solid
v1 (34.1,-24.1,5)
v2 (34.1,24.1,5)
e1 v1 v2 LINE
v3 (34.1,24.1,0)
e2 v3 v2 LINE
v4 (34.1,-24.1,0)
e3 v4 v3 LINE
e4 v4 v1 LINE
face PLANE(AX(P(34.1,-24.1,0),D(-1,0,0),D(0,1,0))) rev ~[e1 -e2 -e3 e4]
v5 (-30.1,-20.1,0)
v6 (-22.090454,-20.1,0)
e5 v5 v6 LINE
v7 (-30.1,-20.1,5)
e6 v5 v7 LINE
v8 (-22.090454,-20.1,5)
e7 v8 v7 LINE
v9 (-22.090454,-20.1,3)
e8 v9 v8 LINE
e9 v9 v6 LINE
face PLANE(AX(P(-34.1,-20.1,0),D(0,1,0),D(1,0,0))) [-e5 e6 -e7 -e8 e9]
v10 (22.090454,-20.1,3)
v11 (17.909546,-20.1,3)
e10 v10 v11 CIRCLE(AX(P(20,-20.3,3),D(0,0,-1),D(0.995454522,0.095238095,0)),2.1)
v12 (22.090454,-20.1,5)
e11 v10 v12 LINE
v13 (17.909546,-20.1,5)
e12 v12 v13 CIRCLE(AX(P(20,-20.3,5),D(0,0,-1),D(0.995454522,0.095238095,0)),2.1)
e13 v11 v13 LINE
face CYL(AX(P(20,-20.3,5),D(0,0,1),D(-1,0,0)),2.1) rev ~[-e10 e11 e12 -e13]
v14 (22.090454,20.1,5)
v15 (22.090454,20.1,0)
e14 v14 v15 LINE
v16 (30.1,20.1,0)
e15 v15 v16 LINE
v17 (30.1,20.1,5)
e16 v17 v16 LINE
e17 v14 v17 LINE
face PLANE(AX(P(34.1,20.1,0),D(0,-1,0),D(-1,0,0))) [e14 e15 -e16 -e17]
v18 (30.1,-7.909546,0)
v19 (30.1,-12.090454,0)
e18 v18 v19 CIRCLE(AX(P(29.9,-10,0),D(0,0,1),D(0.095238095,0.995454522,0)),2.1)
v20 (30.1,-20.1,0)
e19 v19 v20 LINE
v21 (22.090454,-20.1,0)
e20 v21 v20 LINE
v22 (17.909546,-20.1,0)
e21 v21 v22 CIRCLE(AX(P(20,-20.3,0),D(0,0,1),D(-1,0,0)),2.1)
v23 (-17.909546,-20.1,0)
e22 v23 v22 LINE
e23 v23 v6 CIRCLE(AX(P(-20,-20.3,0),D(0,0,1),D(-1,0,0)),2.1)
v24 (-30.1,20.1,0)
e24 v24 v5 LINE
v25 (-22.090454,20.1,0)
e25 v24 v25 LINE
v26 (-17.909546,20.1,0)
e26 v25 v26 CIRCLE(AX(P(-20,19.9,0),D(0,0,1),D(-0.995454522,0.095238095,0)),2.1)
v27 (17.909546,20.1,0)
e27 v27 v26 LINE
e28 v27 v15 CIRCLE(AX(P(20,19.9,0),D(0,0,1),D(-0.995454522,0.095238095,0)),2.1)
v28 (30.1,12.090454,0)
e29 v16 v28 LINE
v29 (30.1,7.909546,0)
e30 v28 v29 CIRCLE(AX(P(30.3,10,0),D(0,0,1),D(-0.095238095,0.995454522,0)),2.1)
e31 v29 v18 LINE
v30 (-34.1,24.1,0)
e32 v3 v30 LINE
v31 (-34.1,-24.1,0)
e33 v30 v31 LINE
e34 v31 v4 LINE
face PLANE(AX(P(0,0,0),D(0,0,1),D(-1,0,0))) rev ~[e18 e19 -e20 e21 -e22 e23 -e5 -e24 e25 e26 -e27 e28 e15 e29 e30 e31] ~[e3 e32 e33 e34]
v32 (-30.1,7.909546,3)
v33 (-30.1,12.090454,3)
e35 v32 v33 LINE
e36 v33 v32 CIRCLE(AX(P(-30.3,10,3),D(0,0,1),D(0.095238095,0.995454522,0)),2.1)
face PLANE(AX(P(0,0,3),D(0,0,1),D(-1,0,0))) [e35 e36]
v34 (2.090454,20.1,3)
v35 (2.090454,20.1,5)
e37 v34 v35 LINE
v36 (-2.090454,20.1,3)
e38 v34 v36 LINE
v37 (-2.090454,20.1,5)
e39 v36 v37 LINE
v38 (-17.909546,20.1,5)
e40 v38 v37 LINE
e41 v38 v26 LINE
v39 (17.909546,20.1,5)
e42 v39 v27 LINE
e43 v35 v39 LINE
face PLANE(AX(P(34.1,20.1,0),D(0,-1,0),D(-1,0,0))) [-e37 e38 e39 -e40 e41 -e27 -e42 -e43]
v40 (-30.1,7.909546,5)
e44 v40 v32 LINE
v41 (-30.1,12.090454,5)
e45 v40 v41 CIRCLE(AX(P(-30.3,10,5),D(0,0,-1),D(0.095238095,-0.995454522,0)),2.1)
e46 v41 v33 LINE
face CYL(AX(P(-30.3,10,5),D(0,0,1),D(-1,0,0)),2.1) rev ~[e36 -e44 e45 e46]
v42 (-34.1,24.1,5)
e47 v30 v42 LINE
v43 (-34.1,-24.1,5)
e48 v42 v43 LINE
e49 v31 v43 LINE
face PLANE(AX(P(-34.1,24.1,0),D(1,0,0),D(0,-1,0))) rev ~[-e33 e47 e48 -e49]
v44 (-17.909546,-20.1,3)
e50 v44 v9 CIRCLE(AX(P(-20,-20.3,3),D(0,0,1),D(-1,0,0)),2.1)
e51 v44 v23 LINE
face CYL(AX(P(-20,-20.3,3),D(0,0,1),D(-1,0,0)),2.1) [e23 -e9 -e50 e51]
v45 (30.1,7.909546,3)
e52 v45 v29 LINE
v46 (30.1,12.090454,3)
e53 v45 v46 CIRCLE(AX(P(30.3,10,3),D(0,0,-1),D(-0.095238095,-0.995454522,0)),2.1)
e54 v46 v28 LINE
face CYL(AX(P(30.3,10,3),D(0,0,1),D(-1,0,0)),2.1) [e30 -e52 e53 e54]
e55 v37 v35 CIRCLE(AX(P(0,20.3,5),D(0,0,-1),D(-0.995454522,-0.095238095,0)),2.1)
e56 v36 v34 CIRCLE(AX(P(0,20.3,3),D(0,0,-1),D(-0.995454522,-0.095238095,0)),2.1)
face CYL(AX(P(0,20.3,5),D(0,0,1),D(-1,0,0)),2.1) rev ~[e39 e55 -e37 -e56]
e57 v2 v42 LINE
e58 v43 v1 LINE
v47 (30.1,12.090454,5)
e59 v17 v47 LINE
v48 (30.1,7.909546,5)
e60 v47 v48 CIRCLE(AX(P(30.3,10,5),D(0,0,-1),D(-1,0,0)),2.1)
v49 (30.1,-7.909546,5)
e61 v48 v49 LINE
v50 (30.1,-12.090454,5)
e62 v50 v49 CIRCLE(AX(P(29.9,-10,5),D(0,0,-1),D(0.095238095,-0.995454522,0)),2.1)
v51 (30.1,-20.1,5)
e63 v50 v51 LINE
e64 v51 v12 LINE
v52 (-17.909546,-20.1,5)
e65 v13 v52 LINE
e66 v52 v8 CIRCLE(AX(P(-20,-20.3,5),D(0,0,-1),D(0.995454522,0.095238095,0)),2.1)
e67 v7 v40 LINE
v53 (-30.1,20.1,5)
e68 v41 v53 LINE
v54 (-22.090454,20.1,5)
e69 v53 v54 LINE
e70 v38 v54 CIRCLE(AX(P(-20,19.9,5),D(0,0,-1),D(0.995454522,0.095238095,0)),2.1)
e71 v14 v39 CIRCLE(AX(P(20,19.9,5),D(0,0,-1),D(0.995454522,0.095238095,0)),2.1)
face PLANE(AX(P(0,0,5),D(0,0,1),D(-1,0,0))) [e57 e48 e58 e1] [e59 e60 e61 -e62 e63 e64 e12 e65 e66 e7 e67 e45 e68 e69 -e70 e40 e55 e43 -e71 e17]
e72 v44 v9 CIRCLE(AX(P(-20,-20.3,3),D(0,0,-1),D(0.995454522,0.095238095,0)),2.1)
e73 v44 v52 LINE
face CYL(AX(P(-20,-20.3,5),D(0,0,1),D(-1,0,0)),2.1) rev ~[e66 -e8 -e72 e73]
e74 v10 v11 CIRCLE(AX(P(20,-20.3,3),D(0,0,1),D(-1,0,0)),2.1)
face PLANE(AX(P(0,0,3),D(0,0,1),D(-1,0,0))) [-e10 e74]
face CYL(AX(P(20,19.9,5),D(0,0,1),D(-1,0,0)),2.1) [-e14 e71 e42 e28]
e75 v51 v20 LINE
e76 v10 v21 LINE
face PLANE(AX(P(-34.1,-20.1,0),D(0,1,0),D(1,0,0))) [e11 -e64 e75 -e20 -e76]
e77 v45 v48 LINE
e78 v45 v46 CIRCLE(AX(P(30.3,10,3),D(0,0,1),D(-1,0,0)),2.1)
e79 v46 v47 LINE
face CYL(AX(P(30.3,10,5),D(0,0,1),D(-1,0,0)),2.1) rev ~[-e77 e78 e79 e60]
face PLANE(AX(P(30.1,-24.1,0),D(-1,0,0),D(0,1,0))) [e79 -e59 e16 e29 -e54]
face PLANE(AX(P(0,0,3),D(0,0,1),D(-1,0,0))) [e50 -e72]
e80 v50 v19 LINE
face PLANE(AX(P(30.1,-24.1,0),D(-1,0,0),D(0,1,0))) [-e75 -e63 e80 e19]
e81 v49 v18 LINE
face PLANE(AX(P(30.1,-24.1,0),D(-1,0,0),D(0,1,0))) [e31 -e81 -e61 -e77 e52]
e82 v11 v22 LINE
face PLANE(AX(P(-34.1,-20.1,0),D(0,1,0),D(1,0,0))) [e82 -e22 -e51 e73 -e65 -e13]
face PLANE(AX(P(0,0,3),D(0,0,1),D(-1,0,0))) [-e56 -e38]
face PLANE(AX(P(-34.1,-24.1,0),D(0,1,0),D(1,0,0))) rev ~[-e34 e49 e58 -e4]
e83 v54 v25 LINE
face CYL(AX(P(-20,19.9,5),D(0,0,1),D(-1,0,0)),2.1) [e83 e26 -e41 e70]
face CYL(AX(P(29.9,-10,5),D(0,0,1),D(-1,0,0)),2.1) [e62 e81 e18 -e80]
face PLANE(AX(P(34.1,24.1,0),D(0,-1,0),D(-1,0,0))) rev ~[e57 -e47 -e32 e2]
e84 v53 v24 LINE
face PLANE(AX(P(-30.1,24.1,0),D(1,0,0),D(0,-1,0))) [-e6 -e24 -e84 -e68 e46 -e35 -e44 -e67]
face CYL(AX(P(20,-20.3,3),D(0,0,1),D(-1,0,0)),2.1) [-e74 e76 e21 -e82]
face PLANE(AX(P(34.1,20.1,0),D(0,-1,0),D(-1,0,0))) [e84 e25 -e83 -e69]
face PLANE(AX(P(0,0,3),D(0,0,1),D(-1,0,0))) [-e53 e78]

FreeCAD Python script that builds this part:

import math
import FreeCAD as App
import Part
import Sketcher
from FreeCAD import Vector
Q = App.Units.Quantity


def faces_at(feature, points):
    """Names of the faces that lie closest to the given points."""
    faces = feature.Shape.Faces
    near = lambda p: min(range(len(faces)), key=lambda i: faces[i].distToShape(Part.Vertex(*p))[0])
    return sorted({f"Face{near(p) + 1}" for p in points})


def add_polygon(sketch, points):
    """Adds a closed chain of lines whose ends are joined by coincident constraints."""
    first, n = sketch.GeometryCount, len(points)
    for a, b in zip(points, points[1:] + points[:1]):
        sketch.addGeometry(Part.LineSegment(App.Vector(*a, 0), App.Vector(*b, 0)), False)
    for i in range(n):
        sketch.addConstraint(Sketcher.Constraint("Coincident", first + i, 2, first + (i + 1) % n, 1))

doc = App.newDocument("Part")
params = doc.addObject("Spreadsheet::Sheet", "Params")
for row, (alias, value) in enumerate([
    ("sketch1_width", "68.2 mm"),
    ("sketch1_height", "48.2 mm"),
    ("pad1_length", "5 mm"),
    ("thickness_wall", "4 mm"),
    ("sketch2_radius", "2.1 mm"),
    ("pad2_length", "5 mm"),
    ("sketch3_radius", "2.1 mm"),
    ("pad3_length", "3 mm"),
    ("sketch4_diameter", "4.2 mm"),
    ("pocket1_length", "2 mm"),
], start=1):
    params.set(f"A{row}", alias)
    params.set(f"B{row}", "=" + value)
    params.setAlias(f"B{row}", alias)

body = doc.addObject("PartDesign::Body", "Body")

# Sketch on XY plane
sketch1 = body.newObject("Sketcher::SketchObject", "Sketch")
sketch1.AttachmentSupport = (doc.getObject("XY_Plane"), [""])
sketch1.MapMode = "FlatFace"
add_polygon(sketch1, [(-34, 24), (-34, -24), (34, -24), (34, 24)])  # lines 0-3
sketch1.addConstraint([
    Sketcher.Constraint("Vertical", 0),
    Sketcher.Constraint("Horizontal", 1),
    Sketcher.Constraint("Vertical", 2),
    Sketcher.Constraint("Horizontal", 3),
    Sketcher.Constraint("Symmetric", 0, 2, 2, 2, -1, 1),
    Sketcher.Constraint("DistanceX", 1, 1, 1, 2, Q("68.2 mm")),
    Sketcher.Constraint("DistanceY", 0, 2, 0, 1, Q("48.2 mm")),
])
sketch1.setExpression("Constraints[9]", "Params.sketch1_width")
sketch1.setExpression("Constraints[10]", "Params.sketch1_height")
pad1 = body.newObject("PartDesign::Pad", "Pad")
pad1.Profile = sketch1
pad1.setExpression("Length", "Params.pad1_length")
doc.recompute()

thickness = body.newObject("PartDesign::Thickness", "Thickness")
thickness.Base = (pad1, faces_at(pad1, [(11.367, 8.033, 0), (11.367, 8.033, 5)]))
thickness.setExpression("Value", "Params.thickness_wall")
thickness.Reversed = True
thickness.Join = "Intersection"

# Sketch on XY plane
sketch2 = body.newObject("Sketcher::SketchObject", "Sketch001")
sketch2.AttachmentSupport = (doc.getObject("XY_Plane"), [""])
sketch2.MapMode = "FlatFace"
sketch2.AttachmentOffset = App.Placement(Vector(0, 0, 5), App.Rotation())
sketch2.addGeometry([
    Part.LineSegment(Vector(-17.9, 20.1, 0), Vector(-22.1, 20.1, 0)),  # 0
    Part.ArcOfCircle(Part.Circle(Vector(-20, 19.9, 0), Vector(0, 0, 1), 2.1), math.radians(175), math.radians(365)),  # 1
    Part.LineSegment(Vector(-30.1, -12.1, 0), Vector(-30.1, -7.9, 0)),  # 2
    Part.ArcOfCircle(Part.Circle(Vector(-29.9, -10, 0), Vector(0, 0, 1), 2.1), math.radians(95), math.radians(265)),  # 3
    Part.LineSegment(Vector(22.1, 20.1, 0), Vector(17.9, 20.1, 0)),  # 4
    Part.ArcOfCircle(Part.Circle(Vector(20, 19.9, 0), Vector(0, 0, 1), 2.1), math.radians(175), math.radians(365)),  # 5
    Part.LineSegment(Vector(2.1, -20.1, 0), Vector(-2.1, -20.1, 0)),  # 6
    Part.ArcOfCircle(Part.Circle(Vector(0, -19.9, 0), Vector(0, 0, 1), 2.1), math.radians(-175), math.radians(-5)),  # 7
    Part.LineSegment(Vector(30.1, -12.1, 0), Vector(30.1, -7.9, 0)),  # 8
    Part.ArcOfCircle(Part.Circle(Vector(29.9, -10, 0), Vector(0, 0, 1), 2.1), math.radians(85), math.radians(275)),  # 9
], False)
sketch2.addConstraint([
    Sketcher.Constraint("Coincident", 0, 1, 1, 2),
    Sketcher.Constraint("Coincident", 1, 1, 0, 2),
    Sketcher.Constraint("Coincident", 2, 1, 3, 2),
    Sketcher.Constraint("Coincident", 3, 1, 2, 2),
    Sketcher.Constraint("Coincident", 4, 1, 5, 2),
    Sketcher.Constraint("Coincident", 5, 1, 4, 2),
    Sketcher.Constraint("Coincident", 6, 1, 7, 2),
    Sketcher.Constraint("Coincident", 7, 1, 6, 2),
    Sketcher.Constraint("Coincident", 8, 1, 9, 2),
    Sketcher.Constraint("Coincident", 9, 1, 8, 2),
    Sketcher.Constraint("Horizontal", 0),
    Sketcher.Constraint("Vertical", 2),
    Sketcher.Constraint("Horizontal", 4),
    Sketcher.Constraint("Horizontal", 6),
    Sketcher.Constraint("Vertical", 8),
    Sketcher.Constraint("Equal", 1, 3),
    Sketcher.Constraint("Equal", 3, 5),
    Sketcher.Constraint("Equal", 5, 7),
    Sketcher.Constraint("Equal", 7, 9),
    Sketcher.Constraint("Symmetric", 1, 3, 5, 3, -2),
    Sketcher.Constraint("Symmetric", 3, 3, 9, 3, -2),
    Sketcher.Constraint("PointOnObject", 7, 3, -2),
    Sketcher.Constraint("Horizontal", 1, 1, 4, 1),
    Sketcher.Constraint("Horizontal", 2, 1, 8, 1),
    Sketcher.Constraint("Equal", 4, 6),
    Sketcher.Constraint("Equal", 6, 2),
    Sketcher.Constraint("Radius", 1, Q("2.1 mm")),
    Sketcher.Constraint("DistanceY", 1, 3, 0, 1, Q("0.2 mm")),
    Sketcher.Constraint("DistanceX", 2, 1, 1, 3, Q("10.1 mm")),
    Sketcher.Constraint("DistanceY", 6, 1, 9, 3, Q("10.1 mm")),
    Sketcher.Constraint("DistanceX", 1, 3, -1, 1, Q("20 mm")),
    Sketcher.Constraint("DistanceY", 3, 3, -1, 1, Q("10 mm")),
    Sketcher.Constraint("DistanceY", 7, 3, 0, 1, Q("40 mm")),
])
sketch2.setExpression("Constraints[26]", "Params.sketch2_radius")
pad2 = body.newObject("PartDesign::Pad", "Pad001")
pad2.Profile = sketch2
pad2.setExpression("Length", "Params.pad2_length")
pad2.Reversed = True

# Sketch on XY plane
sketch3 = body.newObject("Sketcher::SketchObject", "Sketch002")
sketch3.AttachmentSupport = (doc.getObject("XY_Plane"), [""])
sketch3.MapMode = "FlatFace"
sketch3.AttachmentOffset = App.Placement(Vector(0, 0, 3), App.Rotation())
sketch3.addGeometry([
    Part.LineSegment(Vector(-30.1, 7.9, 0), Vector(-30.1, 12.1, 0)),  # 0
    Part.ArcOfCircle(Part.Circle(Vector(-30.3, 10, 0), Vector(0, 0, 1), 2.1), math.radians(85), math.radians(275)),  # 1
    Part.ArcOfCircle(Part.Circle(Vector(0, 20.3, 0), Vector(0, 0, 1), 2.1), math.radians(-5), math.radians(185)),  # 2
    Part.LineSegment(Vector(-2.1, 20.1, 0), Vector(2.1, 20.1, 0)),  # 3
    Part.ArcOfCircle(Part.Circle(Vector(-20, -20.3, 0), Vector(0, 0, 1), 2.1), math.radians(5), math.radians(175)),  # 4
    Part.LineSegment(Vector(-22.1, -20.1, 0), Vector(-17.9, -20.1, 0)),  # 5
    Part.LineSegment(Vector(30.1, 7.9, 0), Vector(30.1, 12.1, 0)),  # 6
    Part.ArcOfCircle(Part.Circle(Vector(30.3, 10, 0), Vector(0, 0, 1), 2.1), math.radians(95), math.radians(265)),  # 7
    Part.ArcOfCircle(Part.Circle(Vector(20, -20.3, 0), Vector(0, 0, 1), 2.1), math.radians(5), math.radians(175)),  # 8
    Part.LineSegment(Vector(17.9, -20.1, 0), Vector(22.1, -20.1, 0)),  # 9
], False)
sketch3.addConstraint([
    Sketcher.Constraint("Coincident", 0, 1, 1, 2),
    Sketcher.Constraint("Coincident", 1, 1, 0, 2),
    Sketcher.Constraint("Coincident", 2, 1, 3, 2),
    Sketcher.Constraint("Coincident", 3, 1, 2, 2),
    Sketcher.Constraint("Coincident", 4, 1, 5, 2),
    Sketcher.Constraint("Coincident", 5, 1, 4, 2),
    Sketcher.Constraint("Coincident", 6, 1, 7, 2),
    Sketcher.Constraint("Coincident", 7, 1, 6, 2),
    Sketcher.Constraint("Coincident", 8, 1, 9, 2),
    Sketcher.Constraint("Coincident", 9, 1, 8, 2),
    Sketcher.Constraint("Vertical", 0),
    Sketcher.Constraint("Horizontal", 3),
    Sketcher.Constraint("Horizontal", 5),
    Sketcher.Constraint("Vertical", 6),
    Sketcher.Constraint("Horizontal", 9),
    Sketcher.Constraint("Equal", 1, 2),
    Sketcher.Constraint("Equal", 2, 4),
    Sketcher.Constraint("Equal", 4, 7),
    Sketcher.Constraint("Equal", 7, 8),
    Sketcher.Constraint("Symmetric", 1, 3, 7, 3, -2),
    Sketcher.Constraint("Symmetric", 4, 3, 8, 3, -2),
    Sketcher.Constraint("PointOnObject", 2, 3, -2),
    Sketcher.Constraint("Horizontal", 0, 1, 6, 1),
    Sketcher.Constraint("Horizontal", 5, 1, 8, 1),
    Sketcher.Constraint("Equal", 3, 5),
    Sketcher.Constraint("Equal", 9, 0),
    Sketcher.Constraint("Radius", 1, Q("2.1 mm")),
    Sketcher.Constraint("DistanceX", 1, 3, 0, 1, Q("0.2 mm")),
    Sketcher.Constraint("DistanceX", 0, 1, 4, 3, Q("10.1 mm")),
    Sketcher.Constraint("DistanceY", 7, 3, 2, 1, Q("10.1 mm")),
    Sketcher.Constraint("DistanceY", -1, 1, 1, 3, Q("10 mm")),
    Sketcher.Constraint("DistanceX", 4, 3, -1, 1, Q("20 mm")),
    Sketcher.Constraint("DistanceY", 4, 3, -1, 1, Q("20.3 mm")),
])
sketch3.setExpression("Constraints[26]", "Params.sketch3_radius")
pad3 = body.newObject("PartDesign::Pad", "Pad002")
pad3.Profile = sketch3
pad3.setExpression("Length", "Params.pad3_length")
pad3.Reversed = True

# Sketch on XY plane
sketch4 = body.newObject("Sketcher::SketchObject", "Sketch003")
sketch4.AttachmentSupport = (doc.getObject("XY_Plane"), [""])
sketch4.MapMode = "FlatFace"
sketch4.AttachmentOffset = App.Placement(Vector(0, 0, 5), App.Rotation())
sketch4.addGeometry([
    Part.LineSegment(Vector(-30.1, 7.9, 0), Vector(-30.1, 12.1, 0)),  # 0
    Part.ArcOfCircle(Part.Circle(Vector(-30.3, 10, 0), Vector(0, 0, 1), 2.1), math.radians(85), math.radians(275)),  # 1
    Part.Circle(Vector(0, 20.3, 0), Vector(0, 0, 1), 2.1),  # 2
    Part.Circle(Vector(-20, -20.3, 0), Vector(0, 0, 1), 2.1),  # 3
    Part.Circle(Vector(30.3, 10, 0), Vector(0, 0, 1), 2.1),  # 4
    Part.Circle(Vector(20, -20.3, 0), Vector(0, 0, 1), 2.1),  # 5
], False)
sketch4.addConstraint([
    Sketcher.Constraint("Coincident", 0, 1, 1, 2),
    Sketcher.Constraint("Coincident", 1, 1, 0, 2),
    Sketcher.Constraint("Vertical", 0),
    Sketcher.Constraint("Equal", 1, 2),
    Sketcher.Constraint("Equal", 2, 3),
    Sketcher.Constraint("Equal", 3, 4),
    Sketcher.Constraint("Equal", 4, 5),
    Sketcher.Constraint("Symmetric", 1, 3, 4, 3, -2),
    Sketcher.Constraint("Symmetric", 3, 3, 5, 3, -2),
    Sketcher.Constraint("PointOnObject", 2, 3, -2),
    Sketcher.Constraint("Diameter", 2, Q("4.2 mm")),
    Sketcher.Constraint("DistanceX", 1, 3, 0, 1, Q("0.2 mm")),
    Sketcher.Constraint("DistanceX", 0, 1, 3, 3, Q("10.1 mm")),
    Sketcher.Constraint("DistanceY", -1, 1, 1, 3, Q("10 mm")),
    Sketcher.Constraint("DistanceX", 3, 3, -1, 1, Q("20 mm")),
    Sketcher.Constraint("DistanceY", -1, 1, 2, 3, Q("20.3 mm")),
    Sketcher.Constraint("DistanceY", 3, 3, -1, 1, Q("20.3 mm")),
])
sketch4.setExpression("Constraints[10]", "Params.sketch4_diameter")
pocket1 = body.newObject("PartDesign::Pocket", "Pocket")
pocket1.Profile = sketch4
pocket1.setExpression("Length", "Params.pocket1_length")

doc.recompute()
